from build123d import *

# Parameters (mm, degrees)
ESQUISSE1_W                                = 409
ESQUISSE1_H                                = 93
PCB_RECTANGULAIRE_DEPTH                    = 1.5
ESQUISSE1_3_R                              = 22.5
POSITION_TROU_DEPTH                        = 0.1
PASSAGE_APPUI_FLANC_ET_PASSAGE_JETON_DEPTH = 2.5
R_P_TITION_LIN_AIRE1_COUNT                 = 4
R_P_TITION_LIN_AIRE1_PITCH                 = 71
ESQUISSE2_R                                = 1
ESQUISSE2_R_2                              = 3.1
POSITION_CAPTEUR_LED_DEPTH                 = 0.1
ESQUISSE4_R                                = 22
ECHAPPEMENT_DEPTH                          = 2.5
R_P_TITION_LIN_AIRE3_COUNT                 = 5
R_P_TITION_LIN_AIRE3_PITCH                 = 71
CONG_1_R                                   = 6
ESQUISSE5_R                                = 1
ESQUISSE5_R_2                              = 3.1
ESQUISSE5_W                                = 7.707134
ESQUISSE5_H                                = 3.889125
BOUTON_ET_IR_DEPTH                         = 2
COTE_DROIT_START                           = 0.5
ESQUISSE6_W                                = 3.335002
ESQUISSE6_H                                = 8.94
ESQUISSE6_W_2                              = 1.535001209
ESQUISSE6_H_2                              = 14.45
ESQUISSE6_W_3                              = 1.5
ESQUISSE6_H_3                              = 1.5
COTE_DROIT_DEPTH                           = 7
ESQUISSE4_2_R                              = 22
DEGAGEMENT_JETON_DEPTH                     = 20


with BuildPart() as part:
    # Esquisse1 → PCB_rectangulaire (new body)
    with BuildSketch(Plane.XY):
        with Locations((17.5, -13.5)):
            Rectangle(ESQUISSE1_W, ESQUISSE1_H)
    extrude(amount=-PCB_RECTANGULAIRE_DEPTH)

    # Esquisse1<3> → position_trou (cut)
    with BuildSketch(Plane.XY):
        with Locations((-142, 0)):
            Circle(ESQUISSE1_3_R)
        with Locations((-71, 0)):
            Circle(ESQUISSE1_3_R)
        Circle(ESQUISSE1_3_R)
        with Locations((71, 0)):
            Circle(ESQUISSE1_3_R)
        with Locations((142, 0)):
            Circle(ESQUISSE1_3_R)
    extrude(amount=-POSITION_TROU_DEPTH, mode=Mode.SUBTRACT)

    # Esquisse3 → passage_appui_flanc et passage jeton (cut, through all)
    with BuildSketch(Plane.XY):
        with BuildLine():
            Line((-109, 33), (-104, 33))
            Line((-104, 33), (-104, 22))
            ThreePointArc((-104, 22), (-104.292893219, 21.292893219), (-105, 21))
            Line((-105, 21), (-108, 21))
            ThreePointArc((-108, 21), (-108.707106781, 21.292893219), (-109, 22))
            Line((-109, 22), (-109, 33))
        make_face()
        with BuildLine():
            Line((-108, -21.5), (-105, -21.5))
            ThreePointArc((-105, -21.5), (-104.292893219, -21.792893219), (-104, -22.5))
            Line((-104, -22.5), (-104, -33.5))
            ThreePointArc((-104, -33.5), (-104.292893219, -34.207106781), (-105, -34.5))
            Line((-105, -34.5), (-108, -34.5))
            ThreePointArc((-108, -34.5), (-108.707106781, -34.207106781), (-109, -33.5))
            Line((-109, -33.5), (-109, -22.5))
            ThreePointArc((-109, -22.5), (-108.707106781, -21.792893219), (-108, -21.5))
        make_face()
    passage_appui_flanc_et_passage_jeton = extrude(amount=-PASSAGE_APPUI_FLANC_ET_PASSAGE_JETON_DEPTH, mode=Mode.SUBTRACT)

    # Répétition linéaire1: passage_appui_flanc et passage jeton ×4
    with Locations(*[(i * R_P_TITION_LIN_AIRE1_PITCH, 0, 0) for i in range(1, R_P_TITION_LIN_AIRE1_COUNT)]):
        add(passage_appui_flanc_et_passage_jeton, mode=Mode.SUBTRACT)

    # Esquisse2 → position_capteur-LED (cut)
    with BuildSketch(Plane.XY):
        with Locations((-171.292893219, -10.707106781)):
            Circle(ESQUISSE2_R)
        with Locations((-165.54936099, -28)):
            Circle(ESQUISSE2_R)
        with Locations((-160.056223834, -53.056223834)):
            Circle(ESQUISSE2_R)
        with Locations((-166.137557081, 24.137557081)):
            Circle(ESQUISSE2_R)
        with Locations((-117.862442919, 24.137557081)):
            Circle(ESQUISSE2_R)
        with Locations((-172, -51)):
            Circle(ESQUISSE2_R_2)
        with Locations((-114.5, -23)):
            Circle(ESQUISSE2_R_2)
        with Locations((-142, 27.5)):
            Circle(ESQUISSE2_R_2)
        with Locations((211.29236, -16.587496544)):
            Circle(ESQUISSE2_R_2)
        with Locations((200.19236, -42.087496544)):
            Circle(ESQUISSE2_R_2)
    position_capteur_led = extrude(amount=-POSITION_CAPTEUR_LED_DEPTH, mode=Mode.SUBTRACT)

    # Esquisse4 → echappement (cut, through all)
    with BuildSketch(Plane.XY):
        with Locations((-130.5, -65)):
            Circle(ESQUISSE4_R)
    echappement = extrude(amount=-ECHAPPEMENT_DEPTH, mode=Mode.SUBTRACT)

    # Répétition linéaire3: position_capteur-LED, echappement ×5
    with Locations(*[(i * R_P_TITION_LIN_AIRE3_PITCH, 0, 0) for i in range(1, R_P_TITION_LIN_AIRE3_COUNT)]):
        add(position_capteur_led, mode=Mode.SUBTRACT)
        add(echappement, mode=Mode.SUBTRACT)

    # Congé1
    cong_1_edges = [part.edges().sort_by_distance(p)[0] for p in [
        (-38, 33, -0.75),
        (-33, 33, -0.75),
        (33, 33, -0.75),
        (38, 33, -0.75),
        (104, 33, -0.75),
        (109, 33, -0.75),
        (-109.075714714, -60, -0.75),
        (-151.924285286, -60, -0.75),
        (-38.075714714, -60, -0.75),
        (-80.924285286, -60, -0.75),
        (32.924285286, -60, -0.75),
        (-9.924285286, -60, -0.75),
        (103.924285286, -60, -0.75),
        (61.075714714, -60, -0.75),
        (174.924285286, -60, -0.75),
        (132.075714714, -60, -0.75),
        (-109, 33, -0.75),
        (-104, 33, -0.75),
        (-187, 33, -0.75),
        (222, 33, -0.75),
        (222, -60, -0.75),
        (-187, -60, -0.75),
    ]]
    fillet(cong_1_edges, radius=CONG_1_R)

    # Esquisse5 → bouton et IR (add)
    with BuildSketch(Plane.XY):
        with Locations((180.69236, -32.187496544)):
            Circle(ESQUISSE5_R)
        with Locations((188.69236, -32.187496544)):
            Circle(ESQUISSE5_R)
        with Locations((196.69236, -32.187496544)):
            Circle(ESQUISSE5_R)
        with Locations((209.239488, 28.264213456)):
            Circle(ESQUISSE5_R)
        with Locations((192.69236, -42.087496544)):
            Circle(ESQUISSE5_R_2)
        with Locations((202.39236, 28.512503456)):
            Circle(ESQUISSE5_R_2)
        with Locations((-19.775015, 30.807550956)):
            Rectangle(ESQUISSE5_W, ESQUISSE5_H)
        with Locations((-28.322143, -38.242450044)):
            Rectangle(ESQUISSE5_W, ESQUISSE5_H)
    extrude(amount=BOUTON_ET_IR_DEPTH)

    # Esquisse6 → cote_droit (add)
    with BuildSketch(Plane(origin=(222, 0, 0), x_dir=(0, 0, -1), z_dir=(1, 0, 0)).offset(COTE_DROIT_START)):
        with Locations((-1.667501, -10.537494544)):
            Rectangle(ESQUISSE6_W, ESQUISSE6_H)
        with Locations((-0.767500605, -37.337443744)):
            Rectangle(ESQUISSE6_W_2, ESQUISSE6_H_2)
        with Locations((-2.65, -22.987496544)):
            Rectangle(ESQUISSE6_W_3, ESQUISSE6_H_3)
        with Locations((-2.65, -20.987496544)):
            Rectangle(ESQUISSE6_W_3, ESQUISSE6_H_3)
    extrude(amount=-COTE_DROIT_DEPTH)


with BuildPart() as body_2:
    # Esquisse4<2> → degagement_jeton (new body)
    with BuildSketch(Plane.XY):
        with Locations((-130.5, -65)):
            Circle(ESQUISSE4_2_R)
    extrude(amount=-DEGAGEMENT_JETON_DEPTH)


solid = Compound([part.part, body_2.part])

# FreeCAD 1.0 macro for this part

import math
import FreeCAD as App
import Part
import Sketcher
from FreeCAD import Vector


def edges_at(feature, points):
    """Names of the edges that pass closest to the given points."""
    edges = feature.Shape.Edges
    near = lambda p: min(range(len(edges)), key=lambda i: edges[i].distToShape(Part.Vertex(*p))[0])
    return sorted({f"Edge{near(p) + 1}" for p in points})

doc = App.newDocument("Part")
body = doc.addObject("PartDesign::Body", "Body")
body.AllowCompound = True

# Sketch on XY plane
sketch1 = body.newObject("Sketcher::SketchObject", "Sketch")
sketch1.AttachmentSupport = (doc.getObject("XY_Plane"), [""])
sketch1.MapMode = "FlatFace"
sketch1.addGeometry(Part.LineSegment(Vector(-187, 33, 0), Vector(-187, -60, 0)), False)
sketch1.addGeometry(Part.LineSegment(Vector(-187, -60, 0), Vector(222, -60, 0)), False)
sketch1.addGeometry(Part.LineSegment(Vector(222, -60, 0), Vector(222, 33, 0)), False)
sketch1.addGeometry(Part.LineSegment(Vector(222, 33, 0), Vector(-187, 33, 0)), False)
sketch1.addConstraint(Sketcher.Constraint("Coincident", 0, 2, 1, 1))
sketch1.addConstraint(Sketcher.Constraint("Coincident", 1, 2, 2, 1))
sketch1.addConstraint(Sketcher.Constraint("Coincident", 2, 2, 3, 1))
sketch1.addConstraint(Sketcher.Constraint("Coincident", 3, 2, 0, 1))
sketch1.addConstraint(Sketcher.Constraint("Vertical", 0))
sketch1.addConstraint(Sketcher.Constraint("Horizontal", 1))
sketch1.addConstraint(Sketcher.Constraint("Vertical", 2))
sketch1.addConstraint(Sketcher.Constraint("Horizontal", 3))
sketch1.addConstraint(Sketcher.Constraint("DistanceX", 1, 1, 1, 2, 409.0))
sketch1.addConstraint(Sketcher.Constraint("DistanceY", 0, 2, 0, 1, 93.0))
sketch1.addConstraint(Sketcher.Constraint("DistanceX", 0, 2, -1, 1, 187.0))
sketch1.addConstraint(Sketcher.Constraint("DistanceY", 0, 2, -1, 1, 60.0))
pad1 = body.newObject("PartDesign::Pad", "Pad")
pad1.Profile = sketch1
pad1.Length = 1.5
pad1.Reversed = True

# Sketch on XY plane
sketch2 = body.newObject("Sketcher::SketchObject", "Sketch001")
sketch2.AttachmentSupport = (doc.getObject("XY_Plane"), [""])
sketch2.MapMode = "FlatFace"
sketch2.addGeometry(Part.Circle(Vector(-142, 0, 0), Vector(0, 0, 1), 22), False)
sketch2.addGeometry(Part.Circle(Vector(-71, 0, 0), Vector(0, 0, 1), 22), False)
sketch2.addGeometry(Part.Circle(Vector(0, 0, 0), Vector(0, 0, 1), 22), False)
sketch2.addGeometry(Part.Circle(Vector(71, 0, 0), Vector(0, 0, 1), 22), False)
sketch2.addGeometry(Part.Circle(Vector(142, 0, 0), Vector(0, 0, 1), 22), False)
sketch2.addConstraint(Sketcher.Constraint("Coincident", 2, 3, -1, 1))
sketch2.addConstraint(Sketcher.Constraint("Equal", 0, 1))
sketch2.addConstraint(Sketcher.Constraint("Equal", 1, 2))
sketch2.addConstraint(Sketcher.Constraint("Equal", 2, 3))
sketch2.addConstraint(Sketcher.Constraint("Equal", 3, 4))
sketch2.addConstraint(Sketcher.Constraint("Symmetric", 1, 3, 3, 3, -1, 1))
sketch2.addConstraint(Sketcher.Constraint("Symmetric", 0, 3, 4, 3, -1, 1))
sketch2.addConstraint(Sketcher.Constraint("PointOnObject", 0, 3, -1))
sketch2.addConstraint(Sketcher.Constraint("PointOnObject", 1, 3, -1))
sketch2.addConstraint(Sketcher.Constraint("Diameter", 0, 45.0))
sketch2.addConstraint(Sketcher.Constraint("DistanceX", 0, 3, -1, 1, 142.0))
sketch2.addConstraint(Sketcher.Constraint("DistanceX", 1, 3, -1, 1, 71.0))
pocket1 = body.newObject("PartDesign::Pocket", "Pocket")
pocket1.Profile = sketch2
pocket1.Length = 0.1

# Sketch on XY plane
sketch3 = body.newObject("Sketcher::SketchObject", "Sketch002")
sketch3.AttachmentSupport = (doc.getObject("XY_Plane"), [""])
sketch3.MapMode = "FlatFace"
sketch3.addGeometry(Part.LineSegment(Vector(-104, 33, 0), Vector(-109, 33, 0)), False)
sketch3.addGeometry(Part.LineSegment(Vector(-109, 33, 0), Vector(-109, 22, 0)), False)
sketch3.addGeometry(Part.ArcOfCircle(Part.Circle(Vector(-108, 22, 0), Vector(0, 0, 1), 1), math.radians(-180), math.radians(-90)), False)
sketch3.addGeometry(Part.LineSegment(Vector(-108, 21, 0), Vector(-105, 21, 0)), False)
sketch3.addGeometry(Part.ArcOfCircle(Part.Circle(Vector(-105, 22, 0), Vector(0, 0, 1), 1), math.radians(-90), math.radians(0)), False)
sketch3.addGeometry(Part.LineSegment(Vector(-104, 22, 0), Vector(-104, 33, 0)), False)
sketch3.addGeometry(Part.LineSegment(Vector(-105, -21.5, 0), Vector(-108, -21.5, 0)), False)
sketch3.addGeometry(Part.ArcOfCircle(Part.Circle(Vector(-108, -22.5, 0), Vector(0, 0, 1), 1), math.radians(90), math.radians(180)), False)
sketch3.addGeometry(Part.LineSegment(Vector(-109, -22.5, 0), Vector(-109, -33.5, 0)), False)
sketch3.addGeometry(Part.ArcOfCircle(Part.Circle(Vector(-108, -33.5, 0), Vector(0, 0, 1), 1), math.radians(-180), math.radians(-90)), False)
sketch3.addGeometry(Part.LineSegment(Vector(-108, -34.5, 0), Vector(-105, -34.5, 0)), False)
sketch3.addGeometry(Part.ArcOfCircle(Part.Circle(Vector(-105, -33.5, 0), Vector(0, 0, 1), 1), math.radians(-90), math.radians(0)), False)
sketch3.addGeometry(Part.LineSegment(Vector(-104, -33.5, 0), Vector(-104, -22.5, 0)), False)
sketch3.addGeometry(Part.ArcOfCircle(Part.Circle(Vector(-105, -22.5, 0), Vector(0, 0, 1), 1), math.radians(0), math.radians(90)), False)
sketch3.addConstraint(Sketcher.Constraint("Coincident", 0, 2, 1, 1))
sketch3.addConstraint(Sketcher.Constraint("Tangent", 1, 2, 2, 1))
sketch3.addConstraint(Sketcher.Constraint("Tangent", 2, 2, 3, 1))
sketch3.addConstraint(Sketcher.Constraint("Tangent", 3, 2, 4, 1))
sketch3.addConstraint(Sketcher.Constraint("Tangent", 4, 2, 5, 1))
sketch3.addConstraint(Sketcher.Constraint("Coincident", 5, 2, 0, 1))
sketch3.addConstraint(Sketcher.Constraint("Tangent", 6, 2, 7, 1))
sketch3.addConstraint(Sketcher.Constraint("Tangent", 7, 2, 8, 1))
sketch3.addConstraint(Sketcher.Constraint("Tangent", 8, 2, 9, 1))
sketch3.addConstraint(Sketcher.Constraint("Tangent", 9, 2, 10, 1))
sketch3.addConstraint(Sketcher.Constraint("Tangent", 10, 2, 11, 1))
sketch3.addConstraint(Sketcher.Constraint("Tangent", 11, 2, 12, 1))
sketch3.addConstraint(Sketcher.Constraint("Tangent", 12, 2, 13, 1))
sketch3.addConstraint(Sketcher.Constraint("Tangent", 13, 2, 6, 1))
sketch3.addConstraint(Sketcher.Constraint("Horizontal", 0))
sketch3.addConstraint(Sketcher.Constraint("Vertical", 1))
sketch3.addConstraint(Sketcher.Constraint("Horizontal", 3))
sketch3.addConstraint(Sketcher.Constraint("Vertical", 5))
sketch3.addConstraint(Sketcher.Constraint("Horizontal", 6))
sketch3.addConstraint(Sketcher.Constraint("Vertical", 8))
sketch3.addConstraint(Sketcher.Constraint("Horizontal", 10))
sketch3.addConstraint(Sketcher.Constraint("Vertical", 12))
sketch3.addConstraint(Sketcher.Constraint("Equal", 2, 4))
sketch3.addConstraint(Sketcher.Constraint("Equal", 4, 7))
sketch3.addConstraint(Sketcher.Constraint("Equal", 7, 9))
sketch3.addConstraint(Sketcher.Constraint("Equal", 9, 11))
sketch3.addConstraint(Sketcher.Constraint("Equal", 11, 13))
sketch3.addConstraint(Sketcher.Constraint("Vertical", 2, 3, 7, 3))
sketch3.addConstraint(Sketcher.Constraint("Vertical", 4, 3, 11, 3))
sketch3.addConstraint(Sketcher.Constraint("Equal", 5, 8))
sketch3.addConstraint(Sketcher.Constraint("Radius", 2, 1.0))
sketch3.addConstraint(Sketcher.Constraint("DistanceX", 0, 2, 0, 1, 5.0))
sketch3.addConstraint(Sketcher.Constraint("DistanceY", 1, 2, 1, 1, 11.0))
sketch3.addConstraint(Sketcher.Constraint("DistanceX", 2, 3, -1, 1, 108.0))
sketch3.addConstraint(Sketcher.Constraint("DistanceY", -1, 1, 2, 3, 22.0))
sketch3.addConstraint(Sketcher.Constraint("DistanceY", 7, 3, -1, 1, 22.5))
pocket2 = body.newObject("PartDesign::Pocket", "Pocket001")
pocket2.Profile = sketch3
pocket2.Type = "ThroughAll"
doc.recompute()

linearpattern = body.newObject("PartDesign::LinearPattern", "LinearPattern")
linearpattern.Originals = [pocket2]
linearpattern.Direction = (doc.getObject("X_Axis"), [""])
linearpattern.Mode = "offset"
linearpattern.Offset = 71
linearpattern.Occurrences = 4
body.Tip = linearpattern

# Sketch on XY plane
sketch4 = body.newObject("Sketcher::SketchObject", "Sketch003")
sketch4.AttachmentSupport = (doc.getObject("XY_Plane"), [""])
sketch4.MapMode = "FlatFace"
sketch4.addGeometry(Part.Circle(Vector(-171.3, -10.7, 0), Vector(0, 0, 1), 1), False)
sketch4.addGeometry(Part.Circle(Vector(-165.5, -28, 0), Vector(0, 0, 1), 1), False)
sketch4.addGeometry(Part.Circle(Vector(-160.1, -53.1, 0), Vector(0, 0, 1), 1), False)
sketch4.addGeometry(Part.Circle(Vector(-166.1, 24.1, 0), Vector(0, 0, 1), 1), False)
sketch4.addGeometry(Part.Circle(Vector(-117.9, 24.1, 0), Vector(0, 0, 1), 1), False)
sketch4.addGeometry(Part.Circle(Vector(-172, -51, 0), Vector(0, 0, 1), 3.1), False)
sketch4.addGeometry(Part.Circle(Vector(-114.5, -23, 0), Vector(0, 0, 1), 3.1), False)
sketch4.addGeometry(Part.Circle(Vector(-142, 27.5, 0), Vector(0, 0, 1), 3.1), False)
sketch4.addGeometry(Part.Circle(Vector(211.3, -16.6, 0), Vector(0, 0, 1), 3.1), False)
sketch4.addGeometry(Part.Circle(Vector(200.2, -42.1, 0), Vector(0, 0, 1), 3.1), False)
sketch4.addConstraint(Sketcher.Constraint("Equal", 0, 1))
sketch4.addConstraint(Sketcher.Constraint("Equal", 1, 2))
sketch4.addConstraint(Sketcher.Constraint("Equal", 2, 3))
sketch4.addConstraint(Sketcher.Constraint("Equal", 3, 4))
sketch4.addConstraint(Sketcher.Constraint("Equal", 5, 6))
sketch4.addConstraint(Sketcher.Constraint("Equal", 6, 7))
sketch4.addConstraint(Sketcher.Constraint("Equal", 7, 8))
sketch4.addConstraint(Sketcher.Constraint("Equal", 8, 9))
sketch4.addConstraint(Sketcher.Constraint("Horizontal", 3, 3, 4, 3))
sketch4.addConstraint(Sketcher.Constraint("Diameter", 0, 2.0))
sketch4.addConstraint(Sketcher.Constraint("Diameter", 5, 6.2))
sketch4.addConstraint(Sketcher.Constraint("DistanceY", 1, 3, -1, 1, 28.0))
sketch4.addConstraint(Sketcher.Constraint("DistanceX", 5, 3, -1, 1, 172.0))
sketch4.addConstraint(Sketcher.Constraint("DistanceY", 5, 3, -1, 1, 51.0))
sketch4.addConstraint(Sketcher.Constraint("DistanceY", 6, 3, -1, 1, 23.0))
sketch4.addConstraint(Sketcher.Constraint("DistanceX", 7, 3, -1, 1, 142.0))
sketch4.addConstraint(Sketcher.Constraint("DistanceX", 6, 3, -1, 1, 114.5))
sketch4.addConstraint(Sketcher.Constraint("DistanceY", -1, 1, 7, 3, 27.5))
sketch4.addConstraint(Sketcher.Constraint("DistanceX", 9, 3, 8, 3, 11.1))
sketch4.addConstraint(Sketcher.Constraint("DistanceY", 9, 3, 8, 3, 25.5))
sketch4.addConstraint(Sketcher.Constraint("DistanceX", 1, 3, -1, 1, 165.549361))
sketch4.addConstraint(Sketcher.Constraint("DistanceX", -1, 1, 8, 3, 211.29236))
sketch4.addConstraint(Sketcher.Constraint("DistanceX", 0, 3, 2, 3, 11.236669))
sketch4.addConstraint(Sketcher.Constraint("DistanceY", 2, 3, 3, 3, 77.193781))
sketch4.addConstraint(Sketcher.Constraint("DistanceX", 0, 3, 4, 3, 53.43045))
sketch4.addConstraint(Sketcher.Constraint("DistanceX", 1, 3, 4, 3, 47.686918))
sketch4.addConstraint(Sketcher.Constraint("DistanceY", 0, 3, -1, 1, 10.707107))
sketch4.addConstraint(Sketcher.Constraint("DistanceY", 2, 3, -1, 1, 53.056224))
sketch4.addConstraint(Sketcher.Constraint("DistanceX", 3, 3, -1, 1, 166.137557))
sketch4.addConstraint(Sketcher.Constraint("DistanceY", 8, 3, -1, 1, 16.587497))
pocket3 = body.newObject("PartDesign::Pocket", "Pocket002")
pocket3.Profile = sketch4
pocket3.Length = 0.1

# Sketch on XY plane
sketch5 = body.newObject("Sketcher::SketchObject", "Sketch004")
sketch5.AttachmentSupport = (doc.getObject("XY_Plane"), [""])
sketch5.MapMode = "FlatFace"
sketch5.addGeometry(Part.Circle(Vector(-130, -65, 0), Vector(0, 0, 1), 22), False)
sketch5.addConstraint(Sketcher.Constraint("Diameter", 0, 44.0))
sketch5.addConstraint(Sketcher.Constraint("DistanceY", 0, 3, -1, 1, 65.0))
sketch5.addConstraint(Sketcher.Constraint("DistanceX", 0, 3, -1, 1, 130.5))
pocket4 = body.newObject("PartDesign::Pocket", "Pocket003")
pocket4.Profile = sketch5
pocket4.Type = "ThroughAll"
doc.recompute()

linearpattern2 = body.newObject("PartDesign::LinearPattern", "LinearPattern001")
linearpattern2.Originals = [pocket3, pocket4]
linearpattern2.Direction = (doc.getObject("X_Axis"), [""])
linearpattern2.Mode = "offset"
linearpattern2.Offset = 71
linearpattern2.Occurrences = 5
body.Tip = linearpattern2
doc.recompute()

fillet = body.newObject("PartDesign::Fillet", "Fillet")
fillet.Base = (linearpattern2, edges_at(linearpattern2, [
    (-38, 33, -0.75),
    (-33, 33, -0.75),
    (33, 33, -0.75),
    (38, 33, -0.75),
    (104, 33, -0.75),
    (109, 33, -0.75),
    (-109.076, -60, -0.75),
    (-151.924, -60, -0.75),
    (-38.076, -60, -0.75),
    (-80.924, -60, -0.75),
    (32.924, -60, -0.75),
    (-9.924, -60, -0.75),
    (103.924, -60, -0.75),
    (61.076, -60, -0.75),
    (174.924, -60, -0.75),
    (132.076, -60, -0.75),
    (-109, 33, -0.75),
    (-104, 33, -0.75),
    (-187, 33, -0.75),
    (222, 33, -0.75),
    (222, -60, -0.75),
    (-187, -60, -0.75),
]))
fillet.Radius = 6

# Sketch on XY plane
sketch6 = body.newObject("Sketcher::SketchObject", "Sketch005")
sketch6.AttachmentSupport = (doc.getObject("XY_Plane"), [""])
sketch6.MapMode = "FlatFace"
sketch6.addGeometry(Part.Circle(Vector(180.7, -32.2, 0), Vector(0, 0, 1), 1), False)
sketch6.addGeometry(Part.Circle(Vector(188.7, -32.2, 0), Vector(0, 0, 1), 1), False)
sketch6.addGeometry(Part.Circle(Vector(196.7, -32.2, 0), Vector(0, 0, 1), 1), False)
sketch6.addGeometry(Part.Circle(Vector(209.2, 28.3, 0), Vector(0, 0, 1), 1), False)
sketch6.addGeometry(Part.Circle(Vector(192.7, -42.1, 0), Vector(0, 0, 1), 3.1), False)
sketch6.addGeometry(Part.Circle(Vector(202.4, 28.5, 0), Vector(0, 0, 1), 3.1), False)
sketch6.addGeometry(Part.LineSegment(Vector(-23.6, 32.8, 0), Vector(-23.6, 28.9, 0)), False)
sketch6.addGeometry(Part.LineSegment(Vector(-23.6, 28.9, 0), Vector(-15.9, 28.9, 0)), False)
sketch6.addGeometry(Part.LineSegment(Vector(-15.9, 28.9, 0), Vector(-15.9, 32.8, 0)), False)
sketch6.addGeometry(Part.LineSegment(Vector(-15.9, 32.8, 0), Vector(-23.6, 32.8, 0)), False)
sketch6.addGeometry(Part.LineSegment(Vector(-32.2, -36.3, 0), Vector(-32.2, -40.2, 0)), False)
sketch6.addGeometry(Part.LineSegment(Vector(-32.2, -40.2, 0), Vector(-24.5, -40.2, 0)), False)
sketch6.addGeometry(Part.LineSegment(Vector(-24.5, -40.2, 0), Vector(-24.5, -36.3, 0)), False)
sketch6.addGeometry(Part.LineSegment(Vector(-24.5, -36.3, 0), Vector(-32.2, -36.3, 0)), False)
sketch6.addConstraint(Sketcher.Constraint("Coincident", 6, 2, 7, 1))
sketch6.addConstraint(Sketcher.Constraint("Coincident", 7, 2, 8, 1))
sketch6.addConstraint(Sketcher.Constraint("Coincident", 8, 2, 9, 1))
sketch6.addConstraint(Sketcher.Constraint("Coincident", 9, 2, 6, 1))
sketch6.addConstraint(Sketcher.Constraint("Coincident", 10, 2, 11, 1))
sketch6.addConstraint(Sketcher.Constraint("Coincident", 11, 2, 12, 1))
sketch6.addConstraint(Sketcher.Constraint("Coincident", 12, 2, 13, 1))
sketch6.addConstraint(Sketcher.Constraint("Coincident", 13, 2, 10, 1))
sketch6.addConstraint(Sketcher.Constraint("Vertical", 6))
sketch6.addConstraint(Sketcher.Constraint("Horizontal", 7))
sketch6.addConstraint(Sketcher.Constraint("Vertical", 8))
sketch6.addConstraint(Sketcher.Constraint("Horizontal", 9))
sketch6.addConstraint(Sketcher.Constraint("Vertical", 10))
sketch6.addConstraint(Sketcher.Constraint("Horizontal", 11))
sketch6.addConstraint(Sketcher.Constraint("Vertical", 12))
sketch6.addConstraint(Sketcher.Constraint("Horizontal", 13))
sketch6.addConstraint(Sketcher.Constraint("Equal", 0, 1))
sketch6.addConstraint(Sketcher.Constraint("Equal", 1, 2))
sketch6.addConstraint(Sketcher.Constraint("Equal", 2, 3))
sketch6.addConstraint(Sketcher.Constraint("Equal", 4, 5))
sketch6.addConstraint(Sketcher.Constraint("Horizontal", 0, 3, 1, 3))
sketch6.addConstraint(Sketcher.Constraint("Horizontal", 1, 3, 2, 3))
sketch6.addConstraint(Sketcher.Constraint("Equal", 9, 11))
sketch6.addConstraint(Sketcher.Constraint("Equal", 8, 10))
sketch6.addConstraint(Sketcher.Constraint("Diameter", 0, 2.0))
sketch6.addConstraint(Sketcher.Constraint("Diameter", 4, 6.2))
sketch6.addConstraint(Sketcher.Constraint("DistanceX", 0, 3, 1, 3, 8.0))
sketch6.addConstraint(Sketcher.Constraint("DistanceX", 1, 3, 2, 3, 8.0))
sketch6.addConstraint(Sketcher.Constraint("DistanceX", 1, 3, 4, 3, 4.0))
sketch6.addConstraint(Sketcher.Constraint("DistanceY", 4, 3, 1, 3, 9.9))
sketch6.addConstraint(Sketcher.Constraint("DistanceX", 2, 3, 5, 3, 5.7))
sketch6.addConstraint(Sketcher.Constraint("DistanceY", 2, 3, 5, 3, 60.7))
sketch6.addConstraint(Sketcher.Constraint("DistanceY", 10, 2, 6, 2, 69.050001))
sketch6.addConstraint(Sketcher.Constraint("DistanceX", 7, 1, 7, 2, 7.707134))
sketch6.addConstraint(Sketcher.Constraint("DistanceY", 6, 2, 6, 1, 3.889125))
sketch6.addConstraint(Sketcher.Constraint("DistanceX", -1, 1, 0, 3, 180.69236))
sketch6.addConstraint(Sketcher.Constraint("DistanceX", -1, 1, 3, 3, 209.239488))
sketch6.addConstraint(Sketcher.Constraint("DistanceY", -1, 1, 6, 2, 28.862988))
sketch6.addConstraint(Sketcher.Constraint("DistanceX", 10, 2, -1, 1, 32.17571))
sketch6.addConstraint(Sketcher.Constraint("DistanceY", 2, 3, 3, 3, 60.45171))
sketch6.addConstraint(Sketcher.Constraint("DistanceX", 6, 2, 0, 3, 204.320942))
sketch6.addConstraint(Sketcher.Constraint("DistanceY", 0, 3, 8, 2, 64.93961))
pad2 = body.newObject("PartDesign::Pad", "Pad001")
pad2.Profile = sketch6
pad2.Length = 2

# Sketch on YZ plane
sketch7 = body.newObject("Sketcher::SketchObject", "Sketch006")
sketch7.AttachmentSupport = (doc.getObject("YZ_Plane"), [""])
sketch7.MapMode = "FlatFace"
sketch7.AttachmentOffset = App.Placement(Vector(0, 0, 222.5), App.Rotation())
sketch7.addGeometry(Part.LineSegment(Vector(-6.1, 3.3, 0), Vector(-15, 3.3, 0)), False)
sketch7.addGeometry(Part.LineSegment(Vector(-15, 3.3, 0), Vector(-15, 0, 0)), False)
sketch7.addGeometry(Part.LineSegment(Vector(-15, 0, 0), Vector(-6.1, 0, 0)), False)
sketch7.addGeometry(Part.LineSegment(Vector(-6.1, 0, 0), Vector(-6.1, 3.3, 0)), False)
sketch7.addGeometry(Part.LineSegment(Vector(-30.1, 1.5, 0), Vector(-44.6, 1.5, 0)), False)
sketch7.addGeometry(Part.LineSegment(Vector(-44.6, 1.5, 0), Vector(-44.6, 0, 0)), False)
sketch7.addGeometry(Part.LineSegment(Vector(-44.6, 0, 0), Vector(-30.1, 0, 0)), False)
sketch7.addGeometry(Part.LineSegment(Vector(-30.1, 0, 0), Vector(-30.1, 1.5, 0)), False)
sketch7.addGeometry(Part.LineSegment(Vector(-22.2, 3.4, 0), Vector(-23.7, 3.4, 0)), False)
sketch7.addGeometry(Part.LineSegment(Vector(-23.7, 3.4, 0), Vector(-23.7, 1.9, 0)), False)
sketch7.addGeometry(Part.LineSegment(Vector(-23.7, 1.9, 0), Vector(-22.2, 1.9, 0)), False)
sketch7.addGeometry(Part.LineSegment(Vector(-22.2, 1.9, 0), Vector(-22.2, 3.4, 0)), False)
sketch7.addGeometry(Part.LineSegment(Vector(-20.2, 3.4, 0), Vector(-21.7, 3.4, 0)), False)
sketch7.addGeometry(Part.LineSegment(Vector(-21.7, 3.4, 0), Vector(-21.7, 1.9, 0)), False)
sketch7.addGeometry(Part.LineSegment(Vector(-21.7, 1.9, 0), Vector(-20.2, 1.9, 0)), False)
sketch7.addGeometry(Part.LineSegment(Vector(-20.2, 1.9, 0), Vector(-20.2, 3.4, 0)), False)
sketch7.addConstraint(Sketcher.Constraint("Coincident", 0, 2, 1, 1))
sketch7.addConstraint(Sketcher.Constraint("Coincident", 1, 2, 2, 1))
sketch7.addConstraint(Sketcher.Constraint("Coincident", 2, 2, 3, 1))
sketch7.addConstraint(Sketcher.Constraint("Coincident", 3, 2, 0, 1))
sketch7.addConstraint(Sketcher.Constraint("Coincident", 4, 2, 5, 1))
sketch7.addConstraint(Sketcher.Constraint("Coincident", 5, 2, 6, 1))
sketch7.addConstraint(Sketcher.Constraint("Coincident", 6, 2, 7, 1))
sketch7.addConstraint(Sketcher.Constraint("Coincident", 7, 2, 4, 1))
sketch7.addConstraint(Sketcher.Constraint("Coincident", 8, 2, 9, 1))
sketch7.addConstraint(Sketcher.Constraint("Coincident", 9, 2, 10, 1))
sketch7.addConstraint(Sketcher.Constraint("Coincident", 10, 2, 11, 1))
sketch7.addConstraint(Sketcher.Constraint("Coincident", 11, 2, 8, 1))
sketch7.addConstraint(Sketcher.Constraint("Coincident", 12, 2, 13, 1))
sketch7.addConstraint(Sketcher.Constraint("Coincident", 13, 2, 14, 1))
sketch7.addConstraint(Sketcher.Constraint("Coincident", 14, 2, 15, 1))
sketch7.addConstraint(Sketcher.Constraint("Coincident", 15, 2, 12, 1))
sketch7.addConstraint(Sketcher.Constraint("Horizontal", 0))
sketch7.addConstraint(Sketcher.Constraint("Vertical", 1))
sketch7.addConstraint(Sketcher.Constraint("Horizontal", 2))
sketch7.addConstraint(Sketcher.Constraint("Vertical", 3))
sketch7.addConstraint(Sketcher.Constraint("Horizontal", 4))
sketch7.addConstraint(Sketcher.Constraint("Vertical", 5))
sketch7.addConstraint(Sketcher.Constraint("Horizontal", 6))
sketch7.addConstraint(Sketcher.Constraint("Vertical", 7))
sketch7.addConstraint(Sketcher.Constraint("Horizontal", 8))
sketch7.addConstraint(Sketcher.Constraint("Vertical", 9))
sketch7.addConstraint(Sketcher.Constraint("Horizontal", 10))
sketch7.addConstraint(Sketcher.Constraint("Vertical", 11))
sketch7.addConstraint(Sketcher.Constraint("Horizontal", 12))
sketch7.addConstraint(Sketcher.Constraint("Vertical", 13))
sketch7.addConstraint(Sketcher.Constraint("Horizontal", 14))
sketch7.addConstraint(Sketcher.Constraint("Vertical", 15))
sketch7.addConstraint(Sketcher.Constraint("PointOnObject", 1, 2, -1))
sketch7.addConstraint(Sketcher.Constraint("PointOnObject", 5, 2, -1))
sketch7.addConstraint(Sketcher.Constraint("Horizontal", 11, 2, 12, 2))
sketch7.addConstraint(Sketcher.Constraint("Horizontal", 10, 2, 13, 2))
sketch7.addConstraint(Sketcher.Constraint("Equal", 10, 12))
sketch7.addConstraint(Sketcher.Constraint("Equal", 14, 9))
sketch7.addConstraint(Sketcher.Constraint("DistanceX", 8, 2, 8, 1, 1.5))
sketch7.addConstraint(Sketcher.Constraint("DistanceX", 8, 2, 12, 2, 2.0))
sketch7.addConstraint(Sketcher.Constraint("DistanceX", 0, 2, 0, 1, 8.94))
sketch7.addConstraint(Sketcher.Constraint("DistanceX", 4, 2, 4, 1, 14.45))
sketch7.addConstraint(Sketcher.Constraint("DistanceY", -1, 1, 8, 2, 3.4))
sketch7.addConstraint(Sketcher.Constraint("DistanceY", 4, 2, 0, 2, 1.800001))
sketch7.addConstraint(Sketcher.Constraint("DistanceY", 1, 2, 1, 1, 3.335002))
sketch7.addConstraint(Sketcher.Constraint("DistanceX", 8, 2, 0, 2, 8.730002))
sketch7.addConstraint(Sketcher.Constraint("DistanceX", 4, 2, 1, 2, 29.554949))
sketch7.addConstraint(Sketcher.Constraint("DistanceX", 0, 2, -1, 1, 15.007495))
pad3 = body.newObject("PartDesign::Pad", "Pad002")
pad3.Profile = sketch7
pad3.Length = 7
pad3.Reversed = True
body2 = doc.addObject("PartDesign::Body", "Body001")

# Sketch on XY plane
sketch8 = body2.newObject("Sketcher::SketchObject", "Sketch007")
sketch8.AttachmentSupport = (doc.getObject("XY_Plane001"), [""])
sketch8.MapMode = "FlatFace"
sketch8.addGeometry(Part.Circle(Vector(-130, -65, 0), Vector(0, 0, 1), 22), False)
sketch8.addConstraint(Sketcher.Constraint("Diameter", 0, 44.0))
sketch8.addConstraint(Sketcher.Constraint("DistanceY", 0, 3, -1, 1, 65.0))
sketch8.addConstraint(Sketcher.Constraint("DistanceX", 0, 3, -1, 1, 130.5))
pad4 = body2.newObject("PartDesign::Pad", "Pad003")
pad4.Profile = sketch8
pad4.Length = 20
pad4.Reversed = True

doc.recompute()
